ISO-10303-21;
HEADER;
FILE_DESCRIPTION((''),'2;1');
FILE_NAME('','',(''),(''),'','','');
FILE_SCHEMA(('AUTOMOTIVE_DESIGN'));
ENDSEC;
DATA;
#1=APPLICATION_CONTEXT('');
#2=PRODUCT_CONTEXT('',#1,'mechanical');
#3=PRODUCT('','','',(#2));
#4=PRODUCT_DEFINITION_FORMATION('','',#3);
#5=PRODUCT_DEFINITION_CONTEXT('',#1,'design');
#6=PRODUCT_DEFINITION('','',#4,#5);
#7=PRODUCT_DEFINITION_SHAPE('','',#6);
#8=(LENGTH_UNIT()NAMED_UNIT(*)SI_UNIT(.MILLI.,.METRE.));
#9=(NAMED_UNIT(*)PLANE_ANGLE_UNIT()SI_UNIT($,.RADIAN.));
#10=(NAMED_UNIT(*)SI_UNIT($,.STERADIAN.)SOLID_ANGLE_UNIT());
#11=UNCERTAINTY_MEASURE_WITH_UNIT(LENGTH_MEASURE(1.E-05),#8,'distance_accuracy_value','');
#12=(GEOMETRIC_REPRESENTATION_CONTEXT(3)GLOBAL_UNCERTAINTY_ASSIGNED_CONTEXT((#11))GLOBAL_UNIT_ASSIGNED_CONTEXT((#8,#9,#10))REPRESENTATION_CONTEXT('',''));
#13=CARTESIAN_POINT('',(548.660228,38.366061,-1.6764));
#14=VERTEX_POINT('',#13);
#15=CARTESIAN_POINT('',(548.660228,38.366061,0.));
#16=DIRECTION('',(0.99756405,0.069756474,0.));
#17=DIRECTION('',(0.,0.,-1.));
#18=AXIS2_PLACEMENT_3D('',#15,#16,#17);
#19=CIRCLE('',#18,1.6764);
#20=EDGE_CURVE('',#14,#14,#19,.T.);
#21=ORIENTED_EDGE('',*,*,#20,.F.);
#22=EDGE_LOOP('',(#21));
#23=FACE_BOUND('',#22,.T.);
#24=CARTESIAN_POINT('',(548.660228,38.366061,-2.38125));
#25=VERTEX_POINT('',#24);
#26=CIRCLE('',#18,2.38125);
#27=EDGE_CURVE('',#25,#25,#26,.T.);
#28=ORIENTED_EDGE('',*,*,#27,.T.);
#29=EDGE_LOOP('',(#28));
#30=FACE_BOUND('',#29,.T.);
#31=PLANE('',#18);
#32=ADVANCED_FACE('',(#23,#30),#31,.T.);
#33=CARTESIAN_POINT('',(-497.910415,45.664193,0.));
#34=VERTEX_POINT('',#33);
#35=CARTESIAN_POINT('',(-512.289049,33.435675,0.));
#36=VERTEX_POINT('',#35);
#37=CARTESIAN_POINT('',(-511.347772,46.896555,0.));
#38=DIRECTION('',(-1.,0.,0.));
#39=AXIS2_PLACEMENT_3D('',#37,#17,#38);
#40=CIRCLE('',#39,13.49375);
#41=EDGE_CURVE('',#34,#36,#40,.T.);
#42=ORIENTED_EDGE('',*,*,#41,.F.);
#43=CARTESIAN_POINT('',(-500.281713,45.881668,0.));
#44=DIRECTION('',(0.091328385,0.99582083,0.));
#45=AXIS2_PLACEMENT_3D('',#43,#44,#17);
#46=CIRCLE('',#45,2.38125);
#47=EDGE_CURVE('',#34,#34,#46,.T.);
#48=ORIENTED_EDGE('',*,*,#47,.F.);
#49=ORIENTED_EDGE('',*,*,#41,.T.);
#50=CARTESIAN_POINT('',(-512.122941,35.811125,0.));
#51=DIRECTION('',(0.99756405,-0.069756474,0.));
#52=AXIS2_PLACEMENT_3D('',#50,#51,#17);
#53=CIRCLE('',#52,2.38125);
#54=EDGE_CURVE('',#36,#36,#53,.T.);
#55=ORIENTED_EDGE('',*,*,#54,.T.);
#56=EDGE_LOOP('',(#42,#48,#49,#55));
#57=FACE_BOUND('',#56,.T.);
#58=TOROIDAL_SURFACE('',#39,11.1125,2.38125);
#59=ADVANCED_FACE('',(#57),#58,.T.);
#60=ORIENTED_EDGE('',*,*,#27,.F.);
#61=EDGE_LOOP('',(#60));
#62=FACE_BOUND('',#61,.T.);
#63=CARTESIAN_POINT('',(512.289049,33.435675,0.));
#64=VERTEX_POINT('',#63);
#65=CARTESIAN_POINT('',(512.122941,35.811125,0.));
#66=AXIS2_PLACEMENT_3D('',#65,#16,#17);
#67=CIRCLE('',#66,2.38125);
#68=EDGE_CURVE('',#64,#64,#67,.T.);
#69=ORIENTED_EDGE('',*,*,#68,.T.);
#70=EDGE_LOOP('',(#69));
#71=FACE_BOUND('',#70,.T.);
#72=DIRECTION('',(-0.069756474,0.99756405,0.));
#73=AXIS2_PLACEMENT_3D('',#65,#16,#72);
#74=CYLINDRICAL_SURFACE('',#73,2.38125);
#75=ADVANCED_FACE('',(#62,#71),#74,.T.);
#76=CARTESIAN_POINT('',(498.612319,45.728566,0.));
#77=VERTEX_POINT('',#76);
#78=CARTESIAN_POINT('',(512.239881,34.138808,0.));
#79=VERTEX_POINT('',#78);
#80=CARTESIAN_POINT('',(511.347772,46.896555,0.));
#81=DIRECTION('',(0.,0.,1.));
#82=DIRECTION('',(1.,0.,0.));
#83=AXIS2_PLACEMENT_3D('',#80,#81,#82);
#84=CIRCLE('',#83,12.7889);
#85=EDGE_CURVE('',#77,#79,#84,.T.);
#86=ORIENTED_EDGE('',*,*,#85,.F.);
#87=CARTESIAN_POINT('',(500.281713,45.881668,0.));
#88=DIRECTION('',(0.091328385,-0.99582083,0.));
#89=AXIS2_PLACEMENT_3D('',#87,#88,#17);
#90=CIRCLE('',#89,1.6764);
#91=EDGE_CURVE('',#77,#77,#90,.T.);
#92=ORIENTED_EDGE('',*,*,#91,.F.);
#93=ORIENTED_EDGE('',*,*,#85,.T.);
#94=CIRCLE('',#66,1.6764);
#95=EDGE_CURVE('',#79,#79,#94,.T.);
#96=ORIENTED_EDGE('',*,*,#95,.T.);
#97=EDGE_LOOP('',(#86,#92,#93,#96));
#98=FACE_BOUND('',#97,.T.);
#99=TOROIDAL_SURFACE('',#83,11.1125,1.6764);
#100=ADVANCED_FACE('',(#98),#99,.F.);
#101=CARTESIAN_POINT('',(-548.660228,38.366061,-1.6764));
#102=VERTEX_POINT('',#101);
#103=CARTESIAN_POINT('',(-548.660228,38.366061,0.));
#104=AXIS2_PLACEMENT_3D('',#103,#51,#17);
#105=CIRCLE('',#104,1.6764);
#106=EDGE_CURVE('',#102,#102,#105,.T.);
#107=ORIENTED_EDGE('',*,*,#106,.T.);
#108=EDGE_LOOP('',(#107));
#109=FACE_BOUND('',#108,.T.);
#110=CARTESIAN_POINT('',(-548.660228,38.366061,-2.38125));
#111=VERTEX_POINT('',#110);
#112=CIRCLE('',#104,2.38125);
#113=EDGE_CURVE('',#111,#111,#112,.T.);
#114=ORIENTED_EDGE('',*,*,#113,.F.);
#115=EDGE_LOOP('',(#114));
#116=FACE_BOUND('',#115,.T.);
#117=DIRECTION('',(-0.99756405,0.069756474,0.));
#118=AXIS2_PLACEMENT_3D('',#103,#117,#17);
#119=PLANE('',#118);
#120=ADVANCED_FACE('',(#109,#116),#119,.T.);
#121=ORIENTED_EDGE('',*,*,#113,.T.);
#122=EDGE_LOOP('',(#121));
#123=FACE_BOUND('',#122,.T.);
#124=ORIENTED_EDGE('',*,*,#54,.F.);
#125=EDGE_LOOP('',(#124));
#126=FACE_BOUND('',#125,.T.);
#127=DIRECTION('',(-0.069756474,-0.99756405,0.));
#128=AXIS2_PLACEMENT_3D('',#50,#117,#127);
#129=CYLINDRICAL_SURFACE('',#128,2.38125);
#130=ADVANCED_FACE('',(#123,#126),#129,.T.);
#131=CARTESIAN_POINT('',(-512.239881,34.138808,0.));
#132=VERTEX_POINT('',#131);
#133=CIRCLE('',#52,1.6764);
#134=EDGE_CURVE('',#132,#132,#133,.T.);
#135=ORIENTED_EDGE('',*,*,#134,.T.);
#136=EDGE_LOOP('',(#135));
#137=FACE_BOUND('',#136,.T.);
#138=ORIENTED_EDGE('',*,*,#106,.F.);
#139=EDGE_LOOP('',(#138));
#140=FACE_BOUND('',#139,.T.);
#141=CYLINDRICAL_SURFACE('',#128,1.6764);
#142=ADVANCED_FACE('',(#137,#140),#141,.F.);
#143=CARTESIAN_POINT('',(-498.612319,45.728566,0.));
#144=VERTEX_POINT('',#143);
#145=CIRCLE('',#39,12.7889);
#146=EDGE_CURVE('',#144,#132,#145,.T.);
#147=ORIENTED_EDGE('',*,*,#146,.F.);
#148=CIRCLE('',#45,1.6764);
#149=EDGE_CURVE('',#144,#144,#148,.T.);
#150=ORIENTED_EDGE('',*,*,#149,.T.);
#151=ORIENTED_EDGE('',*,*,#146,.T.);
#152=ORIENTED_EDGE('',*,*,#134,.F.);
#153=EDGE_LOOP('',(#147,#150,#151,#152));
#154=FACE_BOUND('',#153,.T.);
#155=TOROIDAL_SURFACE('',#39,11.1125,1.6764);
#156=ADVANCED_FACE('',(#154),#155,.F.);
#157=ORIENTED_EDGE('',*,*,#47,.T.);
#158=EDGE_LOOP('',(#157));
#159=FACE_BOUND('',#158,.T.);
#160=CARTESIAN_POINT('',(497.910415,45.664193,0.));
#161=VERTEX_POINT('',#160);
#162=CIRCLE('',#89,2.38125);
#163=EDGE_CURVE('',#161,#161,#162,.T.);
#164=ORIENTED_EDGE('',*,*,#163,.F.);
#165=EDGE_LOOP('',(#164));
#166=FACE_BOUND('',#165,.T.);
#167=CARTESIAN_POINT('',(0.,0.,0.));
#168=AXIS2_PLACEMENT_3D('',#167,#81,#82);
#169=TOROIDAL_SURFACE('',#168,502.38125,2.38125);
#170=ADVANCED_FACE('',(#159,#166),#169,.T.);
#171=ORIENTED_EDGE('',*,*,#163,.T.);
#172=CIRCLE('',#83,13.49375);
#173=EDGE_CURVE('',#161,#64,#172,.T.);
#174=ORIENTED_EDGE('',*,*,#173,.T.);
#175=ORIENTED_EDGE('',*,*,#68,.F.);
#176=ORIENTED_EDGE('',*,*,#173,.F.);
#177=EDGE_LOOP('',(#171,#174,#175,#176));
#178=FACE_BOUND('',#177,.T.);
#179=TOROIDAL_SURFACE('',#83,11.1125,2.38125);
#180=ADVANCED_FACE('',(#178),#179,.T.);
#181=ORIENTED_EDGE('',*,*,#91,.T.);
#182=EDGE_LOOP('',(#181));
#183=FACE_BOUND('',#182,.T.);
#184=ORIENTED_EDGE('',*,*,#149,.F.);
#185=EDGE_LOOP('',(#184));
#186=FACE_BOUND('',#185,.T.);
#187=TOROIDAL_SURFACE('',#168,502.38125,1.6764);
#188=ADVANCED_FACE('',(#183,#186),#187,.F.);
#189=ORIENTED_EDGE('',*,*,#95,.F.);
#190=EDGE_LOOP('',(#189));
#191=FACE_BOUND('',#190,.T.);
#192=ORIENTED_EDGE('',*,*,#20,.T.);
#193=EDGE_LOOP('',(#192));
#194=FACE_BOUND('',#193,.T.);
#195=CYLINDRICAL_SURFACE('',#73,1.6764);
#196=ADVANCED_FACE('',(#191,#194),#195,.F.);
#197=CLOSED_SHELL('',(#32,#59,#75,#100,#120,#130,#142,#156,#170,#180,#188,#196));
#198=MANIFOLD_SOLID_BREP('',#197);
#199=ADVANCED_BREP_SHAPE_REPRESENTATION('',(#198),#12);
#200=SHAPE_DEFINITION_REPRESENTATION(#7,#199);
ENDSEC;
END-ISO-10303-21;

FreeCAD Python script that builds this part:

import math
import FreeCAD as App
import Part
import Sketcher

V = App.Vector
Q = App.Units.Quantity

doc = App.newDocument("Part")
params = doc.addObject("Spreadsheet::Sheet", "Params")
for row, (alias, value) in enumerate([
    ("sketch1_diameter", "0.1875 in"),
    ("sketch1_diameter2", "0.132 in"),
    ("sketch2_radius", "0.4375 in"),
], start=1):
    params.set(f"A{row}", alias)
    params.set(f"B{row}", "=" + value)
    params.setAlias(f"B{row}", alias)

body = doc.addObject("PartDesign::Body", "Body")

# Sketch on YZ plane
sketch1 = body.newObject("Sketcher::SketchObject", "Sketch")
sketch1.AttachmentSupport = (doc.getObject("YZ_Plane"), [""])
sketch1.MapMode = "FlatFace"
sketch1.addGeometry(Part.Circle(V(502.38125, 0, 0), V(0, 0, 1), 2.38125), False)
sketch1.addGeometry(Part.Circle(V(502.38125, 0, 0), V(0, 0, 1), 1.6764), False)
sketch1.addConstraint(Sketcher.Constraint("Coincident", 1, 3, 0, 3))
sketch1.addConstraint(Sketcher.Constraint("PointOnObject", 0, 3, -1))
sketch1.addConstraint(Sketcher.Constraint("Diameter", 0, Q("0.1875 in")))
sketch1.addConstraint(Sketcher.Constraint("Diameter", 1, Q("0.132 in")))
sketch1.addConstraint(Sketcher.Constraint("DistanceX", -1, 1, 0, 3, 502.38125))
sketch1.setExpression("Constraints[2]", "Params.sketch1_diameter")
sketch1.setExpression("Constraints[3]", "Params.sketch1_diameter2")

# Sketch on XY plane
sketch2 = body.newObject("Sketcher::SketchObject", "Sketch001")
sketch2.AttachmentSupport = (doc.getObject("XY_Plane"), [""])
sketch2.MapMode = "FlatFace"
sketch2.addGeometry(Part.LineSegment(V(548.660228, 38.366061, 0), V(512.122941, 35.811125, 0)), False)
sketch2.addGeometry(Part.ArcOfCircle(Part.Circle(V(511.347772, 46.896555, 0), V(0, 0, 1), 11.1125), math.radians(-174.759967), math.radians(-86)), False)
sketch2.addGeometry(Part.ArcOfCircle(Part.Circle(V(0, 0, 0), V(0, 0, 1), 502.38125), math.radians(5.240033), math.radians(90)), False)
sketch2.addConstraint(Sketcher.Constraint("Tangent", 0, 2, 1, 2))
sketch2.addConstraint(Sketcher.Constraint("Tangent", 1, 1, 2, 1))
sketch2.addConstraint(Sketcher.Constraint("Coincident", 2, 3, -1, 1))
sketch2.addConstraint(Sketcher.Constraint("PointOnObject", 2, 2, -2))
sketch2.addConstraint(Sketcher.Constraint("Angle", 0, Q("-176 deg")))
sketch2.addConstraint(Sketcher.Constraint("Radius", 1, Q("0.4375 in")))
sketch2.addConstraint(Sketcher.Constraint("Radius", 2, 502.38125))
sketch2.addConstraint(Sketcher.Constraint("DistanceY", -1, 1, 0, 1, 38.366061))
sketch2.addConstraint(Sketcher.Constraint("DistanceX", -1, 1, 0, 2, 512.122941))
sketch2.setExpression("Constraints[5]", "Params.sketch2_radius")
doc.recompute()

additivepipe = body.newObject("PartDesign::AdditivePipe", "AdditivePipe")
additivepipe.Profile = sketch1
additivepipe.Spine = (sketch2, ["Edge1", "Edge2", "Edge3"])
doc.recompute()

mirrored = body.newObject("PartDesign::Mirrored", "Mirrored")
mirrored.Originals = [additivepipe]
mirrored.MirrorPlane = (doc.getObject("YZ_Plane"), [""])
body.Tip = mirrored

doc.recompute()
